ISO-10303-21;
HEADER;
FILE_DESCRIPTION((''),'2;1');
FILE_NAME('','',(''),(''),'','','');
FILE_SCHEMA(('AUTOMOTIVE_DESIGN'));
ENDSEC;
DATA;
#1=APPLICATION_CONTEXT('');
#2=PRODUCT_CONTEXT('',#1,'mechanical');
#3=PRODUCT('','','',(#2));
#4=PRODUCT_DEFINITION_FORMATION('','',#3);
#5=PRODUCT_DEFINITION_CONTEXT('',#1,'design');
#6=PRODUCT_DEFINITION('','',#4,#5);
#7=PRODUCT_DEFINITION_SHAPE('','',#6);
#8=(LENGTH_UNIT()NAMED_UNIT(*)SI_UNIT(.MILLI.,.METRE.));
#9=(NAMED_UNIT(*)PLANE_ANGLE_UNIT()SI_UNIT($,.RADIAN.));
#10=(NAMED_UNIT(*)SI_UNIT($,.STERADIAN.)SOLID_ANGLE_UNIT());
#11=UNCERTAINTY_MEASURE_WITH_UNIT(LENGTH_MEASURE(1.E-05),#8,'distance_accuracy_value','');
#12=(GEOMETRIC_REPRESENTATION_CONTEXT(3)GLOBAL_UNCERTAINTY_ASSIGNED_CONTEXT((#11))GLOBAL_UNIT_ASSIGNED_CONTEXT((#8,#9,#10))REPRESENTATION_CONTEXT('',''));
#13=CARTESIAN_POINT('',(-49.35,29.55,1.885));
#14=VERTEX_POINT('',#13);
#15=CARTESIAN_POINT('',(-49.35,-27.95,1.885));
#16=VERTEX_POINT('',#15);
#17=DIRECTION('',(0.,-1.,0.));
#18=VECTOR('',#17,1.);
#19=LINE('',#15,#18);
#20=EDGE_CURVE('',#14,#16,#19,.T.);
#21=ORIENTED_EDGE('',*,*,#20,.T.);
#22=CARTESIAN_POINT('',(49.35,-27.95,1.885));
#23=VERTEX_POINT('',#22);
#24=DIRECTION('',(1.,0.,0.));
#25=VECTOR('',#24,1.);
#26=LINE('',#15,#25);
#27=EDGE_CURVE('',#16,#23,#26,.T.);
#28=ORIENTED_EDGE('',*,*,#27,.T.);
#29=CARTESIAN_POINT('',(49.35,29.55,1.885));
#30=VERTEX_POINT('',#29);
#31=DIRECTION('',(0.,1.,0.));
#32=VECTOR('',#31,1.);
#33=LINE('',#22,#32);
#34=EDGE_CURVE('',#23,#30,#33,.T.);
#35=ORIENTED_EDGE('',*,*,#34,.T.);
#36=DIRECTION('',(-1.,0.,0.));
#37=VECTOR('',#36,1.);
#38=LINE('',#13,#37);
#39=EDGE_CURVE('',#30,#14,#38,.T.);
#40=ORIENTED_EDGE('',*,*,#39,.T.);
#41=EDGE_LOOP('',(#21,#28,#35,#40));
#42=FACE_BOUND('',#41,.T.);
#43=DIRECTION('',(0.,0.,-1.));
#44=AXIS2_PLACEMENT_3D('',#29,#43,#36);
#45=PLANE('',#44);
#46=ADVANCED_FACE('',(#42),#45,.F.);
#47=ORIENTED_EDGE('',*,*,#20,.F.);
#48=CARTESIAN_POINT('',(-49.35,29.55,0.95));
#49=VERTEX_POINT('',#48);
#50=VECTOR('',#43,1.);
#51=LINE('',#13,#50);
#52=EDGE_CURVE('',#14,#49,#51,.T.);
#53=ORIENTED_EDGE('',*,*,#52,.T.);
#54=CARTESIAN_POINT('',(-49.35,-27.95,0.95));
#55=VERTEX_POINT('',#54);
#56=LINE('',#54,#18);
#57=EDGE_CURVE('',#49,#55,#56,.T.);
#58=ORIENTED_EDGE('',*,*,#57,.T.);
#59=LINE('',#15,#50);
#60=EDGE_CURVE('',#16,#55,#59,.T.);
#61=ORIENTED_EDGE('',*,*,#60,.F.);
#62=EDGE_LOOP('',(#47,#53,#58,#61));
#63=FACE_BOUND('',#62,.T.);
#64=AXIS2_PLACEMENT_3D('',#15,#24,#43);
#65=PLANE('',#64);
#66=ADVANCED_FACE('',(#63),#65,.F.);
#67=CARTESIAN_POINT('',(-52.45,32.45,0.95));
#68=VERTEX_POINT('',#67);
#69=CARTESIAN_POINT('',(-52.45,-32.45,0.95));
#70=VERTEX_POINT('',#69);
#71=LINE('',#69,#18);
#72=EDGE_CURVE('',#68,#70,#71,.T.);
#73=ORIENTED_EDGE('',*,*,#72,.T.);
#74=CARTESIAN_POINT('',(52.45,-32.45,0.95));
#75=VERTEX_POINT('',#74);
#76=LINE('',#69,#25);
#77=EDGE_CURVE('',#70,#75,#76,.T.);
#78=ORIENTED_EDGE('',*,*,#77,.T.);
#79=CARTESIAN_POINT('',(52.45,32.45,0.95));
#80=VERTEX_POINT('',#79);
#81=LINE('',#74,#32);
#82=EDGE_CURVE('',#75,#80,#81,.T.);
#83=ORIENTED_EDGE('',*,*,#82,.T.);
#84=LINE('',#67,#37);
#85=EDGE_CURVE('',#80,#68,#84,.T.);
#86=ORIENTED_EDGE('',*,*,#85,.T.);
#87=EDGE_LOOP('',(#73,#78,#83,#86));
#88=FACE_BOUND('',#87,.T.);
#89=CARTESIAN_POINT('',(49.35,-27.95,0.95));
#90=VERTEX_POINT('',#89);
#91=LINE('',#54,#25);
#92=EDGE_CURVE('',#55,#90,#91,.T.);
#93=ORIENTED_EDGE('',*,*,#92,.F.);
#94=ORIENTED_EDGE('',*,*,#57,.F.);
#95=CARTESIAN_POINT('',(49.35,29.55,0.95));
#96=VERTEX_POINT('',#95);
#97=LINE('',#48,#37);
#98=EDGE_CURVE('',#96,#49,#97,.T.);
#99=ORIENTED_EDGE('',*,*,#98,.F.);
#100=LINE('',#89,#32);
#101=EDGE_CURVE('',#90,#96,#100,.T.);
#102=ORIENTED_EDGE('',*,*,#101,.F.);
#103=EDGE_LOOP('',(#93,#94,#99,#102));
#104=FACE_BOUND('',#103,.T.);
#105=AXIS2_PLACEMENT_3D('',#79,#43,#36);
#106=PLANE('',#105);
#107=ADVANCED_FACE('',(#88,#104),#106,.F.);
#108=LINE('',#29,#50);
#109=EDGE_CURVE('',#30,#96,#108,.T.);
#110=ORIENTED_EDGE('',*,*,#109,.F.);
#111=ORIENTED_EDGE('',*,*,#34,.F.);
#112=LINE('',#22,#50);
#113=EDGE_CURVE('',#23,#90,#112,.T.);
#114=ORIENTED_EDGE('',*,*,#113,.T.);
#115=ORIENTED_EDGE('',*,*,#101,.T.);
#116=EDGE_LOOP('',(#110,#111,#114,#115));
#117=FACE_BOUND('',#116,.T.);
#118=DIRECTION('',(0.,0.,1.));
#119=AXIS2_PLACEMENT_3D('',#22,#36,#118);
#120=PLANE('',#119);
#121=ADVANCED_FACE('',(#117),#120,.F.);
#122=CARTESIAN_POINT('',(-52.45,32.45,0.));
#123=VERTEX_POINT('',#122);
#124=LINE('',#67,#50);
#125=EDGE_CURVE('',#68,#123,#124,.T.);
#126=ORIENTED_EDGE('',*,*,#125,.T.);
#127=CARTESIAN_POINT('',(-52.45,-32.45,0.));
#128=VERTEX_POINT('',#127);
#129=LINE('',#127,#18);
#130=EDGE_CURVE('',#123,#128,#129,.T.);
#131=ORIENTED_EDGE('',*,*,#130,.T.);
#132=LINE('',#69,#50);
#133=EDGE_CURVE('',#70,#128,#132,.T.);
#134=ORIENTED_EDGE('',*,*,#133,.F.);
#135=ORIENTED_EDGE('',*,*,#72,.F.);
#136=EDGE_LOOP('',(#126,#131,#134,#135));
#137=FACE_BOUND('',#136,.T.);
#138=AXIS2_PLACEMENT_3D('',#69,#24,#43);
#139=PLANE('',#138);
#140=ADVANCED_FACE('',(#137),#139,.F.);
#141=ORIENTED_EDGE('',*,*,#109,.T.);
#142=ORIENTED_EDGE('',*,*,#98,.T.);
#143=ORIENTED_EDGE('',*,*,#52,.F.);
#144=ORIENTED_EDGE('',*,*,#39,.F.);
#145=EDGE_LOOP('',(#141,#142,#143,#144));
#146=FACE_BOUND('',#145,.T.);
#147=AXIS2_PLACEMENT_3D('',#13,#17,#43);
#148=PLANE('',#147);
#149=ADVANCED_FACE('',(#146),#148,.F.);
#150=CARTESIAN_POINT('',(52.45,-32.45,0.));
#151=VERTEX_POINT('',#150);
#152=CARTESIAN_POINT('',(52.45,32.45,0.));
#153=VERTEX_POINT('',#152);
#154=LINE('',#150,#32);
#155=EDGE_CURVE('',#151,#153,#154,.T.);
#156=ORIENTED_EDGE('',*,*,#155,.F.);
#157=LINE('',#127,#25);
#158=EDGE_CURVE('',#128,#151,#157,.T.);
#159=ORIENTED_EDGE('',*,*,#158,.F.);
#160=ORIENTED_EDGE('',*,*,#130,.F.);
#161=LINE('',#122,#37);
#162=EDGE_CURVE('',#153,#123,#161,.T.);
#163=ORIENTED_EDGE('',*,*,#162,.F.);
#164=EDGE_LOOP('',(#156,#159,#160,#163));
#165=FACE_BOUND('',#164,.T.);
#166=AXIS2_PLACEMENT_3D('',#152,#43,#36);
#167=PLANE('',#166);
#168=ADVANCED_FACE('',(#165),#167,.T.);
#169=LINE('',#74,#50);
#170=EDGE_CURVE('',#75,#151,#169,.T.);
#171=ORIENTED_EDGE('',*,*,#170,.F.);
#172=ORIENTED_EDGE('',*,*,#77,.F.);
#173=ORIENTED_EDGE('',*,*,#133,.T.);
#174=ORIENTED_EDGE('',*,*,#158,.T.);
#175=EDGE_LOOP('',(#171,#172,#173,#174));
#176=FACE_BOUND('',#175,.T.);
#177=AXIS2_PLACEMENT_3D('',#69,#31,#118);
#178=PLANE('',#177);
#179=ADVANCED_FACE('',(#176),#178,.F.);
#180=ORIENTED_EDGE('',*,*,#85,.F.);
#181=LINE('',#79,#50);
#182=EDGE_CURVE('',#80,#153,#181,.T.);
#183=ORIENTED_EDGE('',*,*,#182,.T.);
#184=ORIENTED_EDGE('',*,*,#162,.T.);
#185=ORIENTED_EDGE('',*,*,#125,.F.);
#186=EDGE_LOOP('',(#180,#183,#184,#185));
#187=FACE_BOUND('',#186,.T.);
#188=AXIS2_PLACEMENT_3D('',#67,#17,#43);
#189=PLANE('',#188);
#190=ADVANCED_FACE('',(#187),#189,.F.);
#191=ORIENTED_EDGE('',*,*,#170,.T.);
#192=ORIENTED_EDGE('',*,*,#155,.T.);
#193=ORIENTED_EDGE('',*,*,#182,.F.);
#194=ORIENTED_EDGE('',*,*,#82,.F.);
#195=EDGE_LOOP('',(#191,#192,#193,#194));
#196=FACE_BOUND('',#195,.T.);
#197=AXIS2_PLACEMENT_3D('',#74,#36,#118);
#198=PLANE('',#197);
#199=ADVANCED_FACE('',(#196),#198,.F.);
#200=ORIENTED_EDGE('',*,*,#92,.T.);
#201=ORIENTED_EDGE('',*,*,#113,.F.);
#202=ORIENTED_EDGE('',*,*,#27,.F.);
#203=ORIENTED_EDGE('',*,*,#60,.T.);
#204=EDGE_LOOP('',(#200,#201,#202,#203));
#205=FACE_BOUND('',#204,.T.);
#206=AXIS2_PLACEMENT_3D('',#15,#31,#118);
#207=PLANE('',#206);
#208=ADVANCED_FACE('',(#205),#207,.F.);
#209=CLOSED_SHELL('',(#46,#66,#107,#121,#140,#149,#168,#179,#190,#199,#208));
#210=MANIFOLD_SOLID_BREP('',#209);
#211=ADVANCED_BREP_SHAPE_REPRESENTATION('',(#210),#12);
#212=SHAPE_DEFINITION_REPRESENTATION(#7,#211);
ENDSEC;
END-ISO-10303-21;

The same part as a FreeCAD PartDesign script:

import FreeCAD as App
import Part
import Sketcher


def add_polygon(sketch, points):
    """Adds a closed chain of lines whose ends are joined by coincident constraints."""
    first, n = sketch.GeometryCount, len(points)
    for a, b in zip(points, points[1:] + points[:1]):
        sketch.addGeometry(Part.LineSegment(App.Vector(*a, 0), App.Vector(*b, 0)), False)
    for i in range(n):
        sketch.addConstraint(Sketcher.Constraint("Coincident", first + i, 2, first + (i + 1) % n, 1))

doc = App.newDocument("Part")
body = doc.addObject("PartDesign::Body", "Body")

sketch1 = body.newObject("Sketcher::SketchObject", "Sketch")
sketch1.AttachmentSupport = (doc.getObject("XY_Plane"), [""])
sketch1.MapMode = "FlatFace"
add_polygon(sketch1, [(-52.45, 32.45), (-52.45, -32.45), (52.45, -32.45), (52.45, 32.45)])
sketch1.addConstraint([
    Sketcher.Constraint("Vertical", 0),
    Sketcher.Constraint("Horizontal", 1),
    Sketcher.Constraint("Vertical", 2),
    Sketcher.Constraint("Horizontal", 3),
    Sketcher.Constraint("Symmetric", 0, 2, 2, 2, -1, 1),
    Sketcher.Constraint("DistanceX", 1, 1, 1, 2, 104.9),
    Sketcher.Constraint("DistanceY", 0, 2, 0, 1, 64.9),
])
pad1 = body.newObject("PartDesign::Pad", "Pad")
pad1.Profile = sketch1
pad1.Length = 0.95

sketch2 = body.newObject("Sketcher::SketchObject", "Sketch001")
sketch2.AttachmentSupport = (doc.getObject("XY_Plane"), [""])
sketch2.MapMode = "FlatFace"
sketch2.AttachmentOffset = App.Placement(App.Vector(0, 0, 0.95), App.Rotation())
add_polygon(sketch2, [(-49.35, 29.55), (-49.35, -27.95), (49.35, -27.95), (49.35, 29.55)])
sketch2.addConstraint([
    Sketcher.Constraint("Vertical", 0),
    Sketcher.Constraint("Horizontal", 1),
    Sketcher.Constraint("Vertical", 2),
    Sketcher.Constraint("Horizontal", 3),
    Sketcher.Constraint("DistanceX", 1, 1, 1, 2, 98.7),
    Sketcher.Constraint("DistanceY", 0, 2, 0, 1, 57.5),
    Sketcher.Constraint("DistanceX", 0, 2, -1, 1, 49.35),
    Sketcher.Constraint("DistanceY", 0, 2, -1, 1, 27.95),
])
pad2 = body.newObject("PartDesign::Pad", "Pad001")
pad2.Profile = sketch2
pad2.Length = 0.935

doc.recompute()
